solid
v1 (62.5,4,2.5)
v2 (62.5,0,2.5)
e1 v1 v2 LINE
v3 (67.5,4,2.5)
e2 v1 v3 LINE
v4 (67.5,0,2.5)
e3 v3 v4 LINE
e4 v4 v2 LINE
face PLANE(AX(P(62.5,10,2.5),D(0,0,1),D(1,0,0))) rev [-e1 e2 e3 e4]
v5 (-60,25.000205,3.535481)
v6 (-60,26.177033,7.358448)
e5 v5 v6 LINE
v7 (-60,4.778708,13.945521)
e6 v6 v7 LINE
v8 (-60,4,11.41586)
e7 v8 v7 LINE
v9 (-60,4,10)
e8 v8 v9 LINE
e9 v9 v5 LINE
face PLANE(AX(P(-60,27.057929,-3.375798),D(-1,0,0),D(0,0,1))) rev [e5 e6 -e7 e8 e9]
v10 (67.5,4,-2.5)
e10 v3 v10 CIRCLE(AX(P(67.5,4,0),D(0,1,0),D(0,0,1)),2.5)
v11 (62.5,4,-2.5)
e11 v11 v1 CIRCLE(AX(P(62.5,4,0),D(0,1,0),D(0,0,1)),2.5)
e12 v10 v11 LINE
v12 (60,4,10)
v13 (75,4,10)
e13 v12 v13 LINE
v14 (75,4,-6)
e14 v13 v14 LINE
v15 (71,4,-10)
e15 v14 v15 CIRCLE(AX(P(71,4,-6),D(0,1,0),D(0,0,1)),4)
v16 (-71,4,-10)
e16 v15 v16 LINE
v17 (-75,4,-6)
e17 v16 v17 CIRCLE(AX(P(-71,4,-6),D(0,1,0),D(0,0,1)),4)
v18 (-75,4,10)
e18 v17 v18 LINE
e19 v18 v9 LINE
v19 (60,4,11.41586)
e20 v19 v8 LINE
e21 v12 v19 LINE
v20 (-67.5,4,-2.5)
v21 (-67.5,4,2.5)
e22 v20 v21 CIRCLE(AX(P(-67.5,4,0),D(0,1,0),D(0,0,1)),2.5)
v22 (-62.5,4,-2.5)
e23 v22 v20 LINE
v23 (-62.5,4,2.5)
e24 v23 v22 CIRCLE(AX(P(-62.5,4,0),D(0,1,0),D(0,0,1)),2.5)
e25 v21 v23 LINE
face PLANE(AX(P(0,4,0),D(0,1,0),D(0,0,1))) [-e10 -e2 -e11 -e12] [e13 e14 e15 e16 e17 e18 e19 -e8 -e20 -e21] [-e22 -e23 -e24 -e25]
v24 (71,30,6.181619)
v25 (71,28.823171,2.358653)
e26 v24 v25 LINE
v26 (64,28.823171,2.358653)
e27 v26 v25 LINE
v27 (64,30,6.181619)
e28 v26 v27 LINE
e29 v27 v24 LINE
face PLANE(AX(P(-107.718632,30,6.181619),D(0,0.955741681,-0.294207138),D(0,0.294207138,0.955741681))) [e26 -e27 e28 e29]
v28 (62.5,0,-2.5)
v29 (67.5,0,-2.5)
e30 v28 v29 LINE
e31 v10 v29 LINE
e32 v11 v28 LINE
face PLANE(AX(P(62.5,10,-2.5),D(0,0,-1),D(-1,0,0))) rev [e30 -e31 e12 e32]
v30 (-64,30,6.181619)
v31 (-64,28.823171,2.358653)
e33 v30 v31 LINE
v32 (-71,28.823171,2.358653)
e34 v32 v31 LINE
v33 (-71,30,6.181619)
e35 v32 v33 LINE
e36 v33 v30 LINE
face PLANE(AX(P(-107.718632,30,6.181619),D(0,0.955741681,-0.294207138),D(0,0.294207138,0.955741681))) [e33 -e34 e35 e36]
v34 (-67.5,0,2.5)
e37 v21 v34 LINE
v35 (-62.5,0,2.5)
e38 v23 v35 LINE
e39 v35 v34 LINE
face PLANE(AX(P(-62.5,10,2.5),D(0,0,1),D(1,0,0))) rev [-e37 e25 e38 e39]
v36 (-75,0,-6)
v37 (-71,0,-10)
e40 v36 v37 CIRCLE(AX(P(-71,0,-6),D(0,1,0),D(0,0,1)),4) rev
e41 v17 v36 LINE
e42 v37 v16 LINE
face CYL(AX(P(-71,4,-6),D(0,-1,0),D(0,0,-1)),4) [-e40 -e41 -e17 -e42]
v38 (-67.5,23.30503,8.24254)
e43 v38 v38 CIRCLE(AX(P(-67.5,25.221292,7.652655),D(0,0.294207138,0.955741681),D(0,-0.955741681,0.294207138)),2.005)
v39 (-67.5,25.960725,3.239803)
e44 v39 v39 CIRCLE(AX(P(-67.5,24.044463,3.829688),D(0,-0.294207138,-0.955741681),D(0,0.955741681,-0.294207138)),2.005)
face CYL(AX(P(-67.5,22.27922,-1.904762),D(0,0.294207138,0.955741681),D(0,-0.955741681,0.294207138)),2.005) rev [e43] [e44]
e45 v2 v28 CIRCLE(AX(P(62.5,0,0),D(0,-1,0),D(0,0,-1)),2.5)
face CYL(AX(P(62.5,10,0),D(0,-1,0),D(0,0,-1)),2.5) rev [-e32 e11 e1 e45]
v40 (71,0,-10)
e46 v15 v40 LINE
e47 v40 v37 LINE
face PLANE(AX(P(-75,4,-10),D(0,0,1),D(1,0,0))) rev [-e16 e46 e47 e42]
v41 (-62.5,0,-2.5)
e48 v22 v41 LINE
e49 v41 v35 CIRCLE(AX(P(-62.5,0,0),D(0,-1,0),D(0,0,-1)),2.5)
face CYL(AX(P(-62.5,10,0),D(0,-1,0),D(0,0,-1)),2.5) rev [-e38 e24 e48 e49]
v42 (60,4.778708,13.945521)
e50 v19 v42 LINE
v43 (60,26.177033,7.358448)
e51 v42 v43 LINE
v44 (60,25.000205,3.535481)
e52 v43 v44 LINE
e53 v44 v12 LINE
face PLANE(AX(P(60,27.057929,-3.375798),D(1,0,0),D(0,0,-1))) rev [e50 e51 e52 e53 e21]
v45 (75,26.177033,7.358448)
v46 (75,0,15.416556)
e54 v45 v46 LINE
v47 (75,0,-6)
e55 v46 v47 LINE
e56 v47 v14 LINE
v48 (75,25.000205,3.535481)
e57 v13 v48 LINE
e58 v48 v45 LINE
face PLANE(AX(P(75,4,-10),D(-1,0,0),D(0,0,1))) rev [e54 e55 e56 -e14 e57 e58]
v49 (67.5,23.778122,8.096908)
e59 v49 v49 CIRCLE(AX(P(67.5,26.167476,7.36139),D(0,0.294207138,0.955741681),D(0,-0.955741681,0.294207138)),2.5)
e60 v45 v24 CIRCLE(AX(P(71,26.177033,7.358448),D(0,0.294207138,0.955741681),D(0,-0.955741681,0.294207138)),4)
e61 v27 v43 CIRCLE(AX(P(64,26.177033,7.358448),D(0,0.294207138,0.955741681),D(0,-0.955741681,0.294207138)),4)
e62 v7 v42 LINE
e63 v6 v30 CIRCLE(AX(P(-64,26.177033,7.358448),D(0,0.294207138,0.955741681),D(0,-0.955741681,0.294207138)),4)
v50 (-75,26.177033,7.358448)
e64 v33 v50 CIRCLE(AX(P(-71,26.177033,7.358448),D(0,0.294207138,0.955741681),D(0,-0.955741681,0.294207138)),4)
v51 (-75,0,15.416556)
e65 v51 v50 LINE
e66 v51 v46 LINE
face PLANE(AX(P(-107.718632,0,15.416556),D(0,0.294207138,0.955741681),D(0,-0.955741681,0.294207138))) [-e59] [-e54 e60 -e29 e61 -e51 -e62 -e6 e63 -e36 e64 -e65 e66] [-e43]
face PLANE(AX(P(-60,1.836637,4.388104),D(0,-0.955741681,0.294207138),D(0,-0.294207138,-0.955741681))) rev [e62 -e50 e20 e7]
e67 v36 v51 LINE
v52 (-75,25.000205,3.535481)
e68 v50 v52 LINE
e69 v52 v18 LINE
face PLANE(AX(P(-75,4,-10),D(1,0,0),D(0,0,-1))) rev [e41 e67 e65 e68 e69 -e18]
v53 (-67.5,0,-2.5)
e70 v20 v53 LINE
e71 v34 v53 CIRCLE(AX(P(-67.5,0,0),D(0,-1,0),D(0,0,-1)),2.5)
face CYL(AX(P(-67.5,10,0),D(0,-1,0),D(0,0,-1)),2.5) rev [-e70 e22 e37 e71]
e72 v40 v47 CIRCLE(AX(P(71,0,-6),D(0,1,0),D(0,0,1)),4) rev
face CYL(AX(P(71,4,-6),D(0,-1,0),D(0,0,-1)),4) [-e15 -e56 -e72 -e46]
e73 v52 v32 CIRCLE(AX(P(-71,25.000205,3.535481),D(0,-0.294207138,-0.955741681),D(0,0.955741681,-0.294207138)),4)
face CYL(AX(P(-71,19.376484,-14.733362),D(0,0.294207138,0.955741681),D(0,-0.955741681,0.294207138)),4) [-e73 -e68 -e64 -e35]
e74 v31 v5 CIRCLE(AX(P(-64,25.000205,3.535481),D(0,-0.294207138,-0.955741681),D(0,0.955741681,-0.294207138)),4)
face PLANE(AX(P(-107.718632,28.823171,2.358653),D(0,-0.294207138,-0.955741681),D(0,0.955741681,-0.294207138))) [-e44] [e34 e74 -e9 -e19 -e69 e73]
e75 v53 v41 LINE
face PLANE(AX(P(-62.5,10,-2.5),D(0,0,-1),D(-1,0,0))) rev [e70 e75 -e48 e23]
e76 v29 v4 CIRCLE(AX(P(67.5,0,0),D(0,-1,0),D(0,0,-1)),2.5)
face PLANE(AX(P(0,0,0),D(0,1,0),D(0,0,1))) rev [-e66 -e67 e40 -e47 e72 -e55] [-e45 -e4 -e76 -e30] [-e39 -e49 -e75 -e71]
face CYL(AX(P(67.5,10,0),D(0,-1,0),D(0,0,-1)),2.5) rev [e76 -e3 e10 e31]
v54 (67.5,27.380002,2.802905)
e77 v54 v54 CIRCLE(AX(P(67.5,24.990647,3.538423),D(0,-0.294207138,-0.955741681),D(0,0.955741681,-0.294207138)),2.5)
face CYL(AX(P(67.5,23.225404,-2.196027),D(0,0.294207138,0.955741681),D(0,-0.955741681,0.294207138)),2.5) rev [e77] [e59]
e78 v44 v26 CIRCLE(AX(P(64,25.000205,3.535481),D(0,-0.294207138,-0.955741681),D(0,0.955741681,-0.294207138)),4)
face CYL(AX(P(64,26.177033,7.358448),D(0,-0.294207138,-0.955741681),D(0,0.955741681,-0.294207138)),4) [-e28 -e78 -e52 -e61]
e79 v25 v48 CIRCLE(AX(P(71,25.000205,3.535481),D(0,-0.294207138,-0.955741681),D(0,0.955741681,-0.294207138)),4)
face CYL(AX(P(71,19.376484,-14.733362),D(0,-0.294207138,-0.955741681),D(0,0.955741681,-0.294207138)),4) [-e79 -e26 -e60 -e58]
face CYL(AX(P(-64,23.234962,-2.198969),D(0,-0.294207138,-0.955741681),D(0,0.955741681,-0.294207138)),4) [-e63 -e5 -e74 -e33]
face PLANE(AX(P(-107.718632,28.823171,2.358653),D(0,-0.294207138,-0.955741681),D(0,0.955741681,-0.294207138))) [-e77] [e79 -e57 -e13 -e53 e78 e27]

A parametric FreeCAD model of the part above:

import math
import FreeCAD as App
import Part
import Sketcher
Q = App.Units.Quantity


def edges_at(feature, points):
    """Names of the edges that pass closest to the given points."""
    edges = feature.Shape.Edges
    near = lambda p: min(range(len(edges)), key=lambda i: edges[i].distToShape(Part.Vertex(*p))[0])
    return sorted({f"Edge{near(p) + 1}" for p in points})

doc = App.newDocument("Part")
body = doc.addObject("PartDesign::Body", "Body")

# Sketch on XZ plane
sketch1 = body.newObject("Sketcher::SketchObject", "Sketch")
sketch1.AttachmentSupport = (doc.getObject("XZ_Plane"), [""])
sketch1.MapMode = "FlatFace"
sketch1.addGeometry([
    Part.LineSegment(App.Vector(-75, -10, 0), App.Vector(-75, 10, 0)),  # 0
    Part.LineSegment(App.Vector(-75, 10, 0), App.Vector(75, 10, 0)),  # 1
    Part.LineSegment(App.Vector(75, 10, 0), App.Vector(75, -10, 0)),  # 2
    Part.LineSegment(App.Vector(75, -10, 0), App.Vector(-75, -10, 0)),  # 3
    Part.ArcOfCircle(Part.Circle(App.Vector(-67.5, 0, 0), App.Vector(0, 0, 1), 2.5), math.radians(90), math.radians(270)),  # 4
    Part.LineSegment(App.Vector(-67.5, -2.5, 0), App.Vector(-62.5, -2.5, 0)),  # 5
    Part.ArcOfCircle(Part.Circle(App.Vector(-62.5, 0, 0), App.Vector(0, 0, 1), 2.5), math.radians(-90), math.radians(90)),  # 6
    Part.LineSegment(App.Vector(-62.5, 2.5, 0), App.Vector(-67.5, 2.5, 0)),  # 7
    Part.ArcOfCircle(Part.Circle(App.Vector(62.5, 0, 0), App.Vector(0, 0, 1), 2.5), math.radians(90), math.radians(270)),  # 8
    Part.LineSegment(App.Vector(62.5, -2.5, 0), App.Vector(67.5, -2.5, 0)),  # 9
    Part.ArcOfCircle(Part.Circle(App.Vector(67.5, 0, 0), App.Vector(0, 0, 1), 2.5), math.radians(-90), math.radians(90)),  # 10
    Part.LineSegment(App.Vector(67.5, 2.5, 0), App.Vector(62.5, 2.5, 0)),  # 11
], False)
sketch1.addConstraint([
    Sketcher.Constraint("Coincident", 0, 2, 1, 1),
    Sketcher.Constraint("Coincident", 1, 2, 2, 1),
    Sketcher.Constraint("Coincident", 2, 2, 3, 1),
    Sketcher.Constraint("Coincident", 3, 2, 0, 1),
    Sketcher.Constraint("Tangent", 4, 2, 5, 1),
    Sketcher.Constraint("Tangent", 5, 2, 6, 1),
    Sketcher.Constraint("Tangent", 6, 2, 7, 1),
    Sketcher.Constraint("Tangent", 7, 2, 4, 1),
    Sketcher.Constraint("Tangent", 8, 2, 9, 1),
    Sketcher.Constraint("Tangent", 9, 2, 10, 1),
    Sketcher.Constraint("Tangent", 10, 2, 11, 1),
    Sketcher.Constraint("Tangent", 11, 2, 8, 1),
    Sketcher.Constraint("Vertical", 0),
    Sketcher.Constraint("Horizontal", 1),
    Sketcher.Constraint("Vertical", 2),
    Sketcher.Constraint("Horizontal", 3),
    Sketcher.Constraint("Horizontal", 5),
    Sketcher.Constraint("Horizontal", 7),
    Sketcher.Constraint("Horizontal", 9),
    Sketcher.Constraint("Horizontal", 11),
    Sketcher.Constraint("Equal", 6, 8),
    Sketcher.Constraint("Symmetric", 6, 3, 8, 3, -1, 1),
    Sketcher.Constraint("Symmetric", 0, 2, 2, 2, -1, 1),
    Sketcher.Constraint("Symmetric", 4, 3, 10, 3, -2),
    Sketcher.Constraint("Radius", 4, Q("2.5 mm")),
    Sketcher.Constraint("DistanceX", 1, 1, 1, 2, Q("150 mm")),
    Sketcher.Constraint("DistanceX", 5, 1, 5, 2, Q("5 mm")),
    Sketcher.Constraint("DistanceY", 0, 1, 0, 2, Q("20 mm")),
    Sketcher.Constraint("DistanceX", 6, 3, 8, 3, Q("125 mm")),
])
pad1 = body.newObject("PartDesign::Pad", "Pad")
pad1.Profile = sketch1
pad1.Length = 4
pad1.Reversed = True

# Sketch on YZ plane
sketch2 = body.newObject("Sketcher::SketchObject", "Sketch001")
sketch2.AttachmentSupport = (doc.getObject("YZ_Plane"), [""])
sketch2.MapMode = "FlatFace"
sketch2.AttachmentOffset = App.Placement(App.Vector(0, 0, 75), App.Rotation())
sketch2.addGeometry([
    Part.LineSegment(App.Vector(0, 15.4, 0), App.Vector(0, 10, 0)),  # 0
    Part.LineSegment(App.Vector(0, 10, 0), App.Vector(4, 10, 0)),  # 1
    Part.LineSegment(App.Vector(4, 10, 0), App.Vector(28.8, 2.4, 0)),  # 2
    Part.LineSegment(App.Vector(28.8, 2.4, 0), App.Vector(30, 6.2, 0)),  # 3
    Part.LineSegment(App.Vector(30, 6.2, 0), App.Vector(0, 15.4, 0)),  # 4
], False)
sketch2.addConstraint([
    Sketcher.Constraint("Coincident", 0, 2, 1, 1),
    Sketcher.Constraint("Coincident", 1, 2, 2, 1),
    Sketcher.Constraint("Coincident", 2, 2, 3, 1),
    Sketcher.Constraint("Coincident", 3, 2, 4, 1),
    Sketcher.Constraint("Coincident", 4, 2, 0, 1),
    Sketcher.Constraint("Vertical", 0),
    Sketcher.Constraint("Horizontal", 1),
    Sketcher.Constraint("PointOnObject", 0, 2, -2),
    Sketcher.Constraint("Perpendicular", 2, 3),
    Sketcher.Constraint("Perpendicular", 3, 4),
    Sketcher.Constraint("DistanceX", 1, 1, 1, 2, Q("4 mm")),
    Sketcher.Constraint("Distance", 3, Q("4 mm")),
    Sketcher.Constraint("DistanceY", -1, 1, 0, 2, Q("10 mm")),
    Sketcher.Constraint("DistanceX", -1, 1, 3, 2, Q("30 mm")),
    Sketcher.Constraint("Angle", 2, Q("-17.11 deg")),
])
pad2 = body.newObject("PartDesign::Pad", "Pad001")
pad2.Profile = sketch2
pad2.Length = 150
pad2.Reversed = True

# Sketch on an angled plane
sketch3 = body.newObject("Sketcher::SketchObject", "Sketch002")
sketch3.Placement = App.Placement(App.Vector(0, 4.33492, 14.082132), App.Rotation(App.Vector(1, 0, 0), App.Vector(0, 0.955741681, -0.294207138), App.Vector(0, 0.294207138, 0.955741681), "ZXY"))
sketch3.addGeometry([
    Part.Circle(App.Vector(-67.5, 21.9, 0), App.Vector(0, 0, 1), 2),  # 0
    Part.Circle(App.Vector(67.5, 22.8, 0), App.Vector(0, 0, 1), 2.5),  # 1
    Part.LineSegment(App.Vector(-60, 26.9, 0), App.Vector(-60, 0.5, 0)),  # 2
    Part.LineSegment(App.Vector(-60, 0.5, 0), App.Vector(60, 0.5, 0)),  # 3
    Part.LineSegment(App.Vector(60, 0.5, 0), App.Vector(60, 26.9, 0)),  # 4
    Part.LineSegment(App.Vector(60, 26.9, 0), App.Vector(-60, 26.9, 0)),  # 5
], False)
sketch3.addConstraint([
    Sketcher.Constraint("Coincident", 2, 2, 3, 1),
    Sketcher.Constraint("Coincident", 3, 2, 4, 1),
    Sketcher.Constraint("Coincident", 4, 2, 5, 1),
    Sketcher.Constraint("Coincident", 5, 2, 2, 1),
    Sketcher.Constraint("Vertical", 2),
    Sketcher.Constraint("Horizontal", 3),
    Sketcher.Constraint("Vertical", 4),
    Sketcher.Constraint("Horizontal", 5),
    Sketcher.Constraint("Diameter", 1, Q("5 mm")),
    Sketcher.Constraint("Diameter", 0, Q("4.01 mm")),
    Sketcher.Constraint("DistanceX", 3, 1, 3, 2, Q("120 mm")),
    Sketcher.Constraint("DistanceX", 2, 2, -1, 1, Q("60 mm")),
    Sketcher.Constraint("DistanceX", 0, 3, 1, 3, Q("135 mm")),
    Sketcher.Constraint("DistanceY", 0, 3, 4, 2, Q("5 mm")),
    Sketcher.Constraint("DistanceX", 0, 3, -1, 1, Q("67.5 mm")),
    Sketcher.Constraint("DistanceY", 0, 3, 1, 3, Q("0.99 mm")),
    Sketcher.Constraint("DistanceY", 2, 2, 2, 1, Q("26.389235 mm")),
    Sketcher.Constraint("DistanceY", -1, 1, 2, 2, Q("0.464339 mm")),
])
pocket1 = body.newObject("PartDesign::Pocket", "Pocket")
pocket1.Profile = sketch3
pocket1.Length = 10
doc.recompute()

fillet = body.newObject("PartDesign::Fillet", "Fillet")
fillet.Base = (pocket1, edges_at(pocket1, [
    (75, 29.412, 4.27),
    (-75, 29.412, 4.27),
    (-60, 29.412, 4.27),
    (60, 29.412, 4.27),
    (-75, 2, -10),
    (75, 2, -10),
]))
fillet.Radius = 4

# Sketch on YZ plane
sketch4 = body.newObject("Sketcher::SketchObject", "Sketch003")
sketch4.AttachmentSupport = (doc.getObject("YZ_Plane"), [""])
sketch4.MapMode = "FlatFace"
sketch4.AttachmentOffset = App.Placement(App.Vector(0, 0, 75), App.Rotation())
sketch4.addGeometry([
    Part.LineSegment(App.Vector(0, -6, 0), App.Vector(4, -6, 0)),
    Part.LineSegment(App.Vector(4, -6, 0), App.Vector(4, 14.2, 0)),
    Part.LineSegment(App.Vector(4, 14.2, 0), App.Vector(0, 15.4, 0)),
    Part.LineSegment(App.Vector(0, 15.4, 0), App.Vector(0, -6, 0)),
], False)
sketch4.addConstraint([
    Sketcher.Constraint("Coincident", 0, 2, 1, 1),
    Sketcher.Constraint("Coincident", 1, 2, 2, 1),
    Sketcher.Constraint("Coincident", 2, 2, 3, 1),
    Sketcher.Constraint("Coincident", 3, 2, 0, 1),
    Sketcher.Constraint("Horizontal", 0),
    Sketcher.Constraint("Vertical", 1),
    Sketcher.Constraint("Vertical", 3),
    Sketcher.Constraint("PointOnObject", 2, 2, -2),
    Sketcher.Constraint("DistanceX", 0, 1, 0, 2, Q("4 mm")),
    Sketcher.Constraint("DistanceY", 0, 2, -1, 1, Q("6 mm")),
    Sketcher.Constraint("Angle", 2, Q("162.89 deg")),
    Sketcher.Constraint("DistanceY", 1, 1, 1, 2, Q("20.185231 mm")),
])
pad3 = body.newObject("PartDesign::Pad", "Pad002")
pad3.Profile = sketch4
pad3.Length = 150
pad3.Reversed = True

# Sketch on XZ plane
sketch5 = body.newObject("Sketcher::SketchObject", "Sketch004")
sketch5.AttachmentSupport = (doc.getObject("XZ_Plane"), [""])
sketch5.MapMode = "FlatFace"
sketch5.addGeometry([
    Part.LineSegment(App.Vector(-67.5, -2.5, 0), App.Vector(-62.5, -2.5, 0)),  # 0
    Part.ArcOfCircle(Part.Circle(App.Vector(-62.5, 0, 0), App.Vector(0, 0, 1), 2.5), math.radians(-90), math.radians(90)),  # 1
    Part.LineSegment(App.Vector(-62.5, 2.5, 0), App.Vector(-67.5, 2.5, 0)),  # 2
    Part.ArcOfCircle(Part.Circle(App.Vector(-67.5, 0, 0), App.Vector(0, 0, 1), 2.5), math.radians(90), math.radians(270)),  # 3
    Part.LineSegment(App.Vector(67.5, 2.5, 0), App.Vector(62.5, 2.5, 0)),  # 4
    Part.ArcOfCircle(Part.Circle(App.Vector(62.5, 0, 0), App.Vector(0, 0, 1), 2.5), math.radians(90), math.radians(270)),  # 5
    Part.LineSegment(App.Vector(62.5, -2.5, 0), App.Vector(67.5, -2.5, 0)),  # 6
    Part.ArcOfCircle(Part.Circle(App.Vector(67.5, 0, 0), App.Vector(0, 0, 1), 2.5), math.radians(-90), math.radians(90)),  # 7
], False)
sketch5.addConstraint([
    Sketcher.Constraint("Tangent", 0, 2, 1, 1),
    Sketcher.Constraint("Tangent", 1, 2, 2, 1),
    Sketcher.Constraint("Tangent", 2, 2, 3, 1),
    Sketcher.Constraint("Tangent", 3, 2, 0, 1),
    Sketcher.Constraint("Tangent", 4, 2, 5, 1),
    Sketcher.Constraint("Tangent", 5, 2, 6, 1),
    Sketcher.Constraint("Tangent", 6, 2, 7, 1),
    Sketcher.Constraint("Tangent", 7, 2, 4, 1),
    Sketcher.Constraint("Horizontal", 0),
    Sketcher.Constraint("Horizontal", 2),
    Sketcher.Constraint("Horizontal", 4),
    Sketcher.Constraint("Horizontal", 6),
    Sketcher.Constraint("Equal", 3, 5),
    Sketcher.Constraint("Symmetric", 1, 3, 5, 3, -1, 1),
    Sketcher.Constraint("Symmetric", 3, 3, 7, 3, -2),
    Sketcher.Constraint("Radius", 1, Q("2.5 mm")),
    Sketcher.Constraint("DistanceX", 0, 1, 0, 2, Q("5 mm")),
    Sketcher.Constraint("DistanceX", 1, 3, 5, 3, Q("125 mm")),
])
pocket2 = body.newObject("PartDesign::Pocket", "Pocket001")
pocket2.Profile = sketch5
pocket2.Length = 10

doc.recompute()
